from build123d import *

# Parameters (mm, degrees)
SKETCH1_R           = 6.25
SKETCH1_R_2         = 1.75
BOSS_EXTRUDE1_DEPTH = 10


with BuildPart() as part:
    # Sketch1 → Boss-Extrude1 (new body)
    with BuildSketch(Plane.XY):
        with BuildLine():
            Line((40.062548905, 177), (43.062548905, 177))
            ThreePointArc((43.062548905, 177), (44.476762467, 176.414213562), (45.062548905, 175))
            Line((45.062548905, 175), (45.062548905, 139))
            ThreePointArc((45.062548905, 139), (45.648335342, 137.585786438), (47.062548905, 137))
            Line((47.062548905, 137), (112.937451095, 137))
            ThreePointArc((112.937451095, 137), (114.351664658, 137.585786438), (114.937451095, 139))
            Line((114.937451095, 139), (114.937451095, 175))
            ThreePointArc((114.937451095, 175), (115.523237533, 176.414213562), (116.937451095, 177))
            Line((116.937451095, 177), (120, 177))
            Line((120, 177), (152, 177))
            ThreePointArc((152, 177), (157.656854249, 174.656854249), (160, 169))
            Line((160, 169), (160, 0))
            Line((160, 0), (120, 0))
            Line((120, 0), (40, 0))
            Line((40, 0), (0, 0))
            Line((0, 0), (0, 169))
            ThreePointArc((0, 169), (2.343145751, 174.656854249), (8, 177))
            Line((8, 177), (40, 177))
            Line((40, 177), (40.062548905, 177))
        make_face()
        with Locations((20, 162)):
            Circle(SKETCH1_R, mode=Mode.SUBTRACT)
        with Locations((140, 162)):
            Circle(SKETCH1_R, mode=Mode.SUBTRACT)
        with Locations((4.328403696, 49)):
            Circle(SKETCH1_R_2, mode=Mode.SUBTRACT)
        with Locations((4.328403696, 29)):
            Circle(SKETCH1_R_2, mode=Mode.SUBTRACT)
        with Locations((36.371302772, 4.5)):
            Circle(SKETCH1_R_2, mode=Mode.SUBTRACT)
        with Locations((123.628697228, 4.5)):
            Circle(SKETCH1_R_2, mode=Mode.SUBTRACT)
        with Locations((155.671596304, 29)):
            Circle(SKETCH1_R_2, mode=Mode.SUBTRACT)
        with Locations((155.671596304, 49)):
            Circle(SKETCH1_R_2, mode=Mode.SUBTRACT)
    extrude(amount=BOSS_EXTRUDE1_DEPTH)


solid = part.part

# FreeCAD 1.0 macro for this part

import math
import FreeCAD as App
import Part
import Sketcher
Q = App.Units.Quantity

doc = App.newDocument("Part")
body = doc.addObject("PartDesign::Body", "Body")

sketch1 = body.newObject("Sketcher::SketchObject", "Sketch")
sketch1.AttachmentSupport = (doc.getObject("XY_Plane"), [""])
sketch1.MapMode = "FlatFace"
sketch1.addGeometry([
    Part.ArcOfCircle(Part.Circle(App.Vector(43.062549, 175, 0), App.Vector(0, 0, 1), 2), math.radians(0), math.radians(90)),
    Part.LineSegment(App.Vector(43.062549, 177, 0), App.Vector(8, 177, 0)),
    Part.ArcOfCircle(Part.Circle(App.Vector(8, 169, 0), App.Vector(0, 0, 1), 8), math.radians(90), math.radians(180)),
    Part.LineSegment(App.Vector(0, 169, 0), App.Vector(0, 0, 0)),
    Part.LineSegment(App.Vector(0, 0, 0), App.Vector(160, 0, 0)),
    Part.LineSegment(App.Vector(160, 0, 0), App.Vector(160, 169, 0)),
    Part.ArcOfCircle(Part.Circle(App.Vector(152, 169, 0), App.Vector(0, 0, 1), 8), math.radians(0), math.radians(90)),
    Part.LineSegment(App.Vector(152, 177, 0), App.Vector(116.937451, 177, 0)),
    Part.ArcOfCircle(Part.Circle(App.Vector(116.937451, 175, 0), App.Vector(0, 0, 1), 2), math.radians(90), math.radians(180)),
    Part.LineSegment(App.Vector(114.937451, 175, 0), App.Vector(114.937451, 139, 0)),
    Part.ArcOfCircle(Part.Circle(App.Vector(112.937451, 139, 0), App.Vector(0, 0, 1), 2), math.radians(-90), math.radians(0)),
    Part.LineSegment(App.Vector(112.937451, 137, 0), App.Vector(47.062549, 137, 0)),
    Part.ArcOfCircle(Part.Circle(App.Vector(47.062549, 139, 0), App.Vector(0, 0, 1), 2), math.radians(180), math.radians(270)),
    Part.LineSegment(App.Vector(45.062549, 139, 0), App.Vector(45.062549, 175, 0)),
    Part.Circle(App.Vector(123.628697, 4.5, 0), App.Vector(0, 0, 1), 1.75),
    Part.Circle(App.Vector(155.671596, 29, 0), App.Vector(0, 0, 1), 1.75),
    Part.Circle(App.Vector(155.671596, 49, 0), App.Vector(0, 0, 1), 1.75),
    Part.Circle(App.Vector(36.371303, 4.5, 0), App.Vector(0, 0, 1), 1.75),
    Part.Circle(App.Vector(4.328404, 29, 0), App.Vector(0, 0, 1), 1.75),
    Part.Circle(App.Vector(4.328404, 49, 0), App.Vector(0, 0, 1), 1.75),
    Part.Circle(App.Vector(140, 162, 0), App.Vector(0, 0, 1), 6.25),
    Part.Circle(App.Vector(20, 162, 0), App.Vector(0, 0, 1), 6.25),
], False)
sketch1.addConstraint([
    Sketcher.Constraint("Tangent", 0, 2, 1, 1),
    Sketcher.Constraint("Tangent", 1, 2, 2, 1),
    Sketcher.Constraint("Tangent", 2, 2, 3, 1),
    Sketcher.Constraint("Coincident", 3, 2, 4, 1),
    Sketcher.Constraint("Coincident", 4, 2, 5, 1),
    Sketcher.Constraint("Tangent", 5, 2, 6, 1),
    Sketcher.Constraint("Tangent", 6, 2, 7, 1),
    Sketcher.Constraint("Tangent", 7, 2, 8, 1),
    Sketcher.Constraint("Tangent", 8, 2, 9, 1),
    Sketcher.Constraint("Tangent", 9, 2, 10, 2),
    Sketcher.Constraint("Tangent", 10, 1, 11, 1),
    Sketcher.Constraint("Tangent", 11, 2, 12, 2),
    Sketcher.Constraint("Tangent", 12, 1, 13, 1),
    Sketcher.Constraint("Tangent", 13, 2, 0, 1),
    Sketcher.Constraint("Horizontal", 1),
    Sketcher.Constraint("Vertical", 3),
    Sketcher.Constraint("Horizontal", 4),
    Sketcher.Constraint("Vertical", 5),
    Sketcher.Constraint("Horizontal", 7),
    Sketcher.Constraint("Vertical", 9),
    Sketcher.Constraint("Horizontal", 11),
    Sketcher.Constraint("Vertical", 13),
    Sketcher.Constraint("Coincident", 3, 2, -1, 1),
    Sketcher.Constraint("Equal", 2, 6),
    Sketcher.Constraint("Equal", 0, 8),
    Sketcher.Constraint("Equal", 8, 10),
    Sketcher.Constraint("Equal", 10, 12),
    Sketcher.Constraint("Equal", 14, 15),
    Sketcher.Constraint("Equal", 15, 16),
    Sketcher.Constraint("Equal", 16, 17),
    Sketcher.Constraint("Equal", 17, 18),
    Sketcher.Constraint("Equal", 18, 19),
    Sketcher.Constraint("Equal", 20, 21),
    Sketcher.Constraint("Horizontal", 2, 3, 6, 3),
    Sketcher.Constraint("Horizontal", 14, 3, 17, 3),
    Sketcher.Constraint("Horizontal", 15, 3, 18, 3),
    Sketcher.Constraint("Horizontal", 16, 3, 19, 3),
    Sketcher.Constraint("Horizontal", 20, 3, 21, 3),
    Sketcher.Constraint("Vertical", 15, 3, 16, 3),
    Sketcher.Constraint("Vertical", 18, 3, 19, 3),
    Sketcher.Constraint("Equal", 1, 7),
    Sketcher.Constraint("Radius", 0, Q("2 mm")),
    Sketcher.Constraint("Radius", 2, Q("8 mm")),
    Sketcher.Constraint("Diameter", 14, Q("3.5 mm")),
    Sketcher.Constraint("Diameter", 20, Q("12.5 mm")),
    Sketcher.Constraint("DistanceX", 4, 1, 4, 2, Q("160 mm")),
    Sketcher.Constraint("DistanceY", 3, 2, 3, 1, Q("169 mm")),
    Sketcher.Constraint("DistanceY", 9, 2, 9, 1, Q("36 mm")),
    Sketcher.Constraint("DistanceY", -1, 1, 15, 3, Q("29 mm")),
    Sketcher.Constraint("DistanceY", -1, 1, 16, 3, Q("49 mm")),
    Sketcher.Constraint("DistanceX", -1, 1, 20, 3, Q("140 mm")),
    Sketcher.Constraint("DistanceY", -1, 1, 20, 3, Q("162 mm")),
    Sketcher.Constraint("DistanceX", -1, 1, 21, 3, Q("20 mm")),
    Sketcher.Constraint("DistanceY", -1, 1, 14, 3, Q("4.5 mm")),
    Sketcher.Constraint("DistanceX", 1, 2, 1, 1, Q("35.062549 mm")),
    Sketcher.Constraint("DistanceX", 14, 3, 15, 3, Q("32.042899 mm")),
    Sketcher.Constraint("DistanceX", 18, 3, 17, 3, Q("32.042899 mm")),
    Sketcher.Constraint("DistanceX", 12, 3, 14, 3, Q("76.566148 mm")),
    Sketcher.Constraint("DistanceX", 17, 3, 10, 3, Q("76.566148 mm")),
])
pad1 = body.newObject("PartDesign::Pad", "Pad")
pad1.Profile = sketch1
pad1.Length = 10

doc.recompute()
